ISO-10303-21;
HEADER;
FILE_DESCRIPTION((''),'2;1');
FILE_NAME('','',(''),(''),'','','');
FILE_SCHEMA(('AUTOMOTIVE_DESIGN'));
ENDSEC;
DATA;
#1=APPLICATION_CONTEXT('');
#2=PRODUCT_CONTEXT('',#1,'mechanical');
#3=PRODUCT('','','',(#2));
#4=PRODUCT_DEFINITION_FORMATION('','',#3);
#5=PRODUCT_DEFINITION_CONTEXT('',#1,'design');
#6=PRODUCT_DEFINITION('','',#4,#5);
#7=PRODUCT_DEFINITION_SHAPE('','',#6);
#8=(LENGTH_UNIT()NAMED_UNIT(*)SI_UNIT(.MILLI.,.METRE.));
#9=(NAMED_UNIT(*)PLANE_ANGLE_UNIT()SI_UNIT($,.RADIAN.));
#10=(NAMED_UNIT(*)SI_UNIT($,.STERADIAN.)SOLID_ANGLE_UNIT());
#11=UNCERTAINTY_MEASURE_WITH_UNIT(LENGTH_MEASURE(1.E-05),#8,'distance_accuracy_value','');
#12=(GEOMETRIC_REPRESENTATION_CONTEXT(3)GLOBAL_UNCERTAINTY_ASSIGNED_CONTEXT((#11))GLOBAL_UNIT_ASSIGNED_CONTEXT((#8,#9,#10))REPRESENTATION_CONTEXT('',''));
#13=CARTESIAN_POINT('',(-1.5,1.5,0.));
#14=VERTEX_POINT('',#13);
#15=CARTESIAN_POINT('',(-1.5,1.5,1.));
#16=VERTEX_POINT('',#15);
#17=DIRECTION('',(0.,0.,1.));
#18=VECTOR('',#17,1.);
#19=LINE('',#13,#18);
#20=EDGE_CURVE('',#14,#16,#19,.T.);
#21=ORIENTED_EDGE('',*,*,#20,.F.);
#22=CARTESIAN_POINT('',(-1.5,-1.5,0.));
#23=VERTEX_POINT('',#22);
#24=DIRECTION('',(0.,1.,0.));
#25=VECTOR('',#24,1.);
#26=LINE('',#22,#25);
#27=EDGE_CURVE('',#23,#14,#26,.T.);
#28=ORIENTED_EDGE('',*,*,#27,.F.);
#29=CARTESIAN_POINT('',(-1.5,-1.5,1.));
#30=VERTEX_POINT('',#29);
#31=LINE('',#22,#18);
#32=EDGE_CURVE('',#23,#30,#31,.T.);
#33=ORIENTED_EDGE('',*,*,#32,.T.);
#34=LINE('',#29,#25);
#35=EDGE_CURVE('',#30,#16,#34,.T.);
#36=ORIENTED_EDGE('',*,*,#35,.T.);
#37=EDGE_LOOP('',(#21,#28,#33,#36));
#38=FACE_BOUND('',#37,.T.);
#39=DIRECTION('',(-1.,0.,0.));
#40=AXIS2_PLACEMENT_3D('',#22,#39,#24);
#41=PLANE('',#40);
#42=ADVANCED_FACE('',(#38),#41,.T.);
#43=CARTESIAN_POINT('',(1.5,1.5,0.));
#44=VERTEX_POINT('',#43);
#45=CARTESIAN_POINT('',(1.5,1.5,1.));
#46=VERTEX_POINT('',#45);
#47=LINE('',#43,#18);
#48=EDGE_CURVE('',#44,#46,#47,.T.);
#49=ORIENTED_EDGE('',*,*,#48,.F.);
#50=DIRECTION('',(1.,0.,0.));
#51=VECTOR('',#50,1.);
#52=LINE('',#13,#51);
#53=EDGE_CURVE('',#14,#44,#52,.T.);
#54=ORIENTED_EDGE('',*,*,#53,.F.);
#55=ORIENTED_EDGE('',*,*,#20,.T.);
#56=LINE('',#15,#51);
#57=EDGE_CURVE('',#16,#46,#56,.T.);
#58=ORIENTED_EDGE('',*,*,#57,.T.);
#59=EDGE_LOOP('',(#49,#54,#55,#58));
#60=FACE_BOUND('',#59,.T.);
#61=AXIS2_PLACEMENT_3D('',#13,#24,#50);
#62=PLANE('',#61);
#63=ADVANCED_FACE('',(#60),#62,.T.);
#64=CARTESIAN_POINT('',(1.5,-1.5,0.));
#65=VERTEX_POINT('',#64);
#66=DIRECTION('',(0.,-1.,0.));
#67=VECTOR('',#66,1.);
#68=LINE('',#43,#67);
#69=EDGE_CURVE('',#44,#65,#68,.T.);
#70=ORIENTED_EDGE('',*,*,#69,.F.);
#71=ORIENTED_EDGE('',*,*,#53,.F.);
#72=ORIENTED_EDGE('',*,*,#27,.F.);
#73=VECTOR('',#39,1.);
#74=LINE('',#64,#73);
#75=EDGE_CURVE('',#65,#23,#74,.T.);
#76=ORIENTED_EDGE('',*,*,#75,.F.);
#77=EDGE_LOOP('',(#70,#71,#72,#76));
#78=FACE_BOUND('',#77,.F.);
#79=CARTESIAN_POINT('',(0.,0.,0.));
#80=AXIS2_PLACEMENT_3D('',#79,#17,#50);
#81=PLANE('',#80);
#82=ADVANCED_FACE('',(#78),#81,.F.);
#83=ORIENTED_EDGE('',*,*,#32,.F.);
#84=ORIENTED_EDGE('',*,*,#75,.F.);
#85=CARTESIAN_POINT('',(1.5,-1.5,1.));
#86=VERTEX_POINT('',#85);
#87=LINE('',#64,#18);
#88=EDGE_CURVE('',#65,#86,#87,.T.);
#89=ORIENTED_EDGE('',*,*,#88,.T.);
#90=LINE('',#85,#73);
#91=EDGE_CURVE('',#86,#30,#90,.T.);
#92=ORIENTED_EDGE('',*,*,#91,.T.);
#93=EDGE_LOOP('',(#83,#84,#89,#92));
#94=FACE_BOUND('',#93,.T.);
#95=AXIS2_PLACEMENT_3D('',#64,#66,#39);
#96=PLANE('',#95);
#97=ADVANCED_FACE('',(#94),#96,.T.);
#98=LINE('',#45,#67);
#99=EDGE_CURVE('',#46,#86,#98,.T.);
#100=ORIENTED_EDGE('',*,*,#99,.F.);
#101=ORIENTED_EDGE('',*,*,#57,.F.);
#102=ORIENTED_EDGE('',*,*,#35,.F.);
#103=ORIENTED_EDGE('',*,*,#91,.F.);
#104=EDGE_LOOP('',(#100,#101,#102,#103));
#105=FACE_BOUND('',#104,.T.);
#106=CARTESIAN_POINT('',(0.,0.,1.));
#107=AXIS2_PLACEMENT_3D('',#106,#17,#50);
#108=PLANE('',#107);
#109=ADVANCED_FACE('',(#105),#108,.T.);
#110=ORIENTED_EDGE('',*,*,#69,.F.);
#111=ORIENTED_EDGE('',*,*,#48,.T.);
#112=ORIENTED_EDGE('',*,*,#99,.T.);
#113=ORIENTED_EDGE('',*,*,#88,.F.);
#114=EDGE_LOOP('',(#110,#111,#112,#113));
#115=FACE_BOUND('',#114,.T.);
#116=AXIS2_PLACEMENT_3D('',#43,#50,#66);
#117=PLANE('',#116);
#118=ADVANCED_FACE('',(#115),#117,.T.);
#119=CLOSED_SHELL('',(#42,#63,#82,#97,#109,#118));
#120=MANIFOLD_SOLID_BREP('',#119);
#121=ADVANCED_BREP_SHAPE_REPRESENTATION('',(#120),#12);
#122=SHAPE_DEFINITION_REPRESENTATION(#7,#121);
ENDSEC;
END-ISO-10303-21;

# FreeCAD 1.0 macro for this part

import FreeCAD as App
import Part
import Sketcher
from FreeCAD import Vector
Q = App.Units.Quantity

doc = App.newDocument("Part")
body = doc.addObject("PartDesign::Body", "Body")

sketch1 = body.newObject("Sketcher::SketchObject", "Sketch")
sketch1.AttachmentSupport = (doc.getObject("XY_Plane"), [""])
sketch1.MapMode = "FlatFace"
sketch1.addGeometry([
    Part.LineSegment(Vector(-1.5, 1.5, 0), Vector(-1.5, -1.5, 0)),
    Part.LineSegment(Vector(-1.5, -1.5, 0), Vector(1.5, -1.5, 0)),
    Part.LineSegment(Vector(1.5, -1.5, 0), Vector(1.5, 1.5, 0)),
    Part.LineSegment(Vector(1.5, 1.5, 0), Vector(-1.5, 1.5, 0)),
], False)
sketch1.addConstraint([
    Sketcher.Constraint("Coincident", 0, 2, 1, 1),
    Sketcher.Constraint("Coincident", 1, 2, 2, 1),
    Sketcher.Constraint("Coincident", 2, 2, 3, 1),
    Sketcher.Constraint("Coincident", 3, 2, 0, 1),
    Sketcher.Constraint("Vertical", 0),
    Sketcher.Constraint("Horizontal", 1),
    Sketcher.Constraint("Vertical", 2),
    Sketcher.Constraint("Horizontal", 3),
    Sketcher.Constraint("Symmetric", 0, 2, 2, 2, -1, 1),
    Sketcher.Constraint("Equal", 3, 0),
    Sketcher.Constraint("DistanceX", 1, 1, 1, 2, Q("3 mm")),
])
pad1 = body.newObject("PartDesign::Pad", "Pad")
pad1.Profile = sketch1
pad1.Length = 1

doc.recompute()
